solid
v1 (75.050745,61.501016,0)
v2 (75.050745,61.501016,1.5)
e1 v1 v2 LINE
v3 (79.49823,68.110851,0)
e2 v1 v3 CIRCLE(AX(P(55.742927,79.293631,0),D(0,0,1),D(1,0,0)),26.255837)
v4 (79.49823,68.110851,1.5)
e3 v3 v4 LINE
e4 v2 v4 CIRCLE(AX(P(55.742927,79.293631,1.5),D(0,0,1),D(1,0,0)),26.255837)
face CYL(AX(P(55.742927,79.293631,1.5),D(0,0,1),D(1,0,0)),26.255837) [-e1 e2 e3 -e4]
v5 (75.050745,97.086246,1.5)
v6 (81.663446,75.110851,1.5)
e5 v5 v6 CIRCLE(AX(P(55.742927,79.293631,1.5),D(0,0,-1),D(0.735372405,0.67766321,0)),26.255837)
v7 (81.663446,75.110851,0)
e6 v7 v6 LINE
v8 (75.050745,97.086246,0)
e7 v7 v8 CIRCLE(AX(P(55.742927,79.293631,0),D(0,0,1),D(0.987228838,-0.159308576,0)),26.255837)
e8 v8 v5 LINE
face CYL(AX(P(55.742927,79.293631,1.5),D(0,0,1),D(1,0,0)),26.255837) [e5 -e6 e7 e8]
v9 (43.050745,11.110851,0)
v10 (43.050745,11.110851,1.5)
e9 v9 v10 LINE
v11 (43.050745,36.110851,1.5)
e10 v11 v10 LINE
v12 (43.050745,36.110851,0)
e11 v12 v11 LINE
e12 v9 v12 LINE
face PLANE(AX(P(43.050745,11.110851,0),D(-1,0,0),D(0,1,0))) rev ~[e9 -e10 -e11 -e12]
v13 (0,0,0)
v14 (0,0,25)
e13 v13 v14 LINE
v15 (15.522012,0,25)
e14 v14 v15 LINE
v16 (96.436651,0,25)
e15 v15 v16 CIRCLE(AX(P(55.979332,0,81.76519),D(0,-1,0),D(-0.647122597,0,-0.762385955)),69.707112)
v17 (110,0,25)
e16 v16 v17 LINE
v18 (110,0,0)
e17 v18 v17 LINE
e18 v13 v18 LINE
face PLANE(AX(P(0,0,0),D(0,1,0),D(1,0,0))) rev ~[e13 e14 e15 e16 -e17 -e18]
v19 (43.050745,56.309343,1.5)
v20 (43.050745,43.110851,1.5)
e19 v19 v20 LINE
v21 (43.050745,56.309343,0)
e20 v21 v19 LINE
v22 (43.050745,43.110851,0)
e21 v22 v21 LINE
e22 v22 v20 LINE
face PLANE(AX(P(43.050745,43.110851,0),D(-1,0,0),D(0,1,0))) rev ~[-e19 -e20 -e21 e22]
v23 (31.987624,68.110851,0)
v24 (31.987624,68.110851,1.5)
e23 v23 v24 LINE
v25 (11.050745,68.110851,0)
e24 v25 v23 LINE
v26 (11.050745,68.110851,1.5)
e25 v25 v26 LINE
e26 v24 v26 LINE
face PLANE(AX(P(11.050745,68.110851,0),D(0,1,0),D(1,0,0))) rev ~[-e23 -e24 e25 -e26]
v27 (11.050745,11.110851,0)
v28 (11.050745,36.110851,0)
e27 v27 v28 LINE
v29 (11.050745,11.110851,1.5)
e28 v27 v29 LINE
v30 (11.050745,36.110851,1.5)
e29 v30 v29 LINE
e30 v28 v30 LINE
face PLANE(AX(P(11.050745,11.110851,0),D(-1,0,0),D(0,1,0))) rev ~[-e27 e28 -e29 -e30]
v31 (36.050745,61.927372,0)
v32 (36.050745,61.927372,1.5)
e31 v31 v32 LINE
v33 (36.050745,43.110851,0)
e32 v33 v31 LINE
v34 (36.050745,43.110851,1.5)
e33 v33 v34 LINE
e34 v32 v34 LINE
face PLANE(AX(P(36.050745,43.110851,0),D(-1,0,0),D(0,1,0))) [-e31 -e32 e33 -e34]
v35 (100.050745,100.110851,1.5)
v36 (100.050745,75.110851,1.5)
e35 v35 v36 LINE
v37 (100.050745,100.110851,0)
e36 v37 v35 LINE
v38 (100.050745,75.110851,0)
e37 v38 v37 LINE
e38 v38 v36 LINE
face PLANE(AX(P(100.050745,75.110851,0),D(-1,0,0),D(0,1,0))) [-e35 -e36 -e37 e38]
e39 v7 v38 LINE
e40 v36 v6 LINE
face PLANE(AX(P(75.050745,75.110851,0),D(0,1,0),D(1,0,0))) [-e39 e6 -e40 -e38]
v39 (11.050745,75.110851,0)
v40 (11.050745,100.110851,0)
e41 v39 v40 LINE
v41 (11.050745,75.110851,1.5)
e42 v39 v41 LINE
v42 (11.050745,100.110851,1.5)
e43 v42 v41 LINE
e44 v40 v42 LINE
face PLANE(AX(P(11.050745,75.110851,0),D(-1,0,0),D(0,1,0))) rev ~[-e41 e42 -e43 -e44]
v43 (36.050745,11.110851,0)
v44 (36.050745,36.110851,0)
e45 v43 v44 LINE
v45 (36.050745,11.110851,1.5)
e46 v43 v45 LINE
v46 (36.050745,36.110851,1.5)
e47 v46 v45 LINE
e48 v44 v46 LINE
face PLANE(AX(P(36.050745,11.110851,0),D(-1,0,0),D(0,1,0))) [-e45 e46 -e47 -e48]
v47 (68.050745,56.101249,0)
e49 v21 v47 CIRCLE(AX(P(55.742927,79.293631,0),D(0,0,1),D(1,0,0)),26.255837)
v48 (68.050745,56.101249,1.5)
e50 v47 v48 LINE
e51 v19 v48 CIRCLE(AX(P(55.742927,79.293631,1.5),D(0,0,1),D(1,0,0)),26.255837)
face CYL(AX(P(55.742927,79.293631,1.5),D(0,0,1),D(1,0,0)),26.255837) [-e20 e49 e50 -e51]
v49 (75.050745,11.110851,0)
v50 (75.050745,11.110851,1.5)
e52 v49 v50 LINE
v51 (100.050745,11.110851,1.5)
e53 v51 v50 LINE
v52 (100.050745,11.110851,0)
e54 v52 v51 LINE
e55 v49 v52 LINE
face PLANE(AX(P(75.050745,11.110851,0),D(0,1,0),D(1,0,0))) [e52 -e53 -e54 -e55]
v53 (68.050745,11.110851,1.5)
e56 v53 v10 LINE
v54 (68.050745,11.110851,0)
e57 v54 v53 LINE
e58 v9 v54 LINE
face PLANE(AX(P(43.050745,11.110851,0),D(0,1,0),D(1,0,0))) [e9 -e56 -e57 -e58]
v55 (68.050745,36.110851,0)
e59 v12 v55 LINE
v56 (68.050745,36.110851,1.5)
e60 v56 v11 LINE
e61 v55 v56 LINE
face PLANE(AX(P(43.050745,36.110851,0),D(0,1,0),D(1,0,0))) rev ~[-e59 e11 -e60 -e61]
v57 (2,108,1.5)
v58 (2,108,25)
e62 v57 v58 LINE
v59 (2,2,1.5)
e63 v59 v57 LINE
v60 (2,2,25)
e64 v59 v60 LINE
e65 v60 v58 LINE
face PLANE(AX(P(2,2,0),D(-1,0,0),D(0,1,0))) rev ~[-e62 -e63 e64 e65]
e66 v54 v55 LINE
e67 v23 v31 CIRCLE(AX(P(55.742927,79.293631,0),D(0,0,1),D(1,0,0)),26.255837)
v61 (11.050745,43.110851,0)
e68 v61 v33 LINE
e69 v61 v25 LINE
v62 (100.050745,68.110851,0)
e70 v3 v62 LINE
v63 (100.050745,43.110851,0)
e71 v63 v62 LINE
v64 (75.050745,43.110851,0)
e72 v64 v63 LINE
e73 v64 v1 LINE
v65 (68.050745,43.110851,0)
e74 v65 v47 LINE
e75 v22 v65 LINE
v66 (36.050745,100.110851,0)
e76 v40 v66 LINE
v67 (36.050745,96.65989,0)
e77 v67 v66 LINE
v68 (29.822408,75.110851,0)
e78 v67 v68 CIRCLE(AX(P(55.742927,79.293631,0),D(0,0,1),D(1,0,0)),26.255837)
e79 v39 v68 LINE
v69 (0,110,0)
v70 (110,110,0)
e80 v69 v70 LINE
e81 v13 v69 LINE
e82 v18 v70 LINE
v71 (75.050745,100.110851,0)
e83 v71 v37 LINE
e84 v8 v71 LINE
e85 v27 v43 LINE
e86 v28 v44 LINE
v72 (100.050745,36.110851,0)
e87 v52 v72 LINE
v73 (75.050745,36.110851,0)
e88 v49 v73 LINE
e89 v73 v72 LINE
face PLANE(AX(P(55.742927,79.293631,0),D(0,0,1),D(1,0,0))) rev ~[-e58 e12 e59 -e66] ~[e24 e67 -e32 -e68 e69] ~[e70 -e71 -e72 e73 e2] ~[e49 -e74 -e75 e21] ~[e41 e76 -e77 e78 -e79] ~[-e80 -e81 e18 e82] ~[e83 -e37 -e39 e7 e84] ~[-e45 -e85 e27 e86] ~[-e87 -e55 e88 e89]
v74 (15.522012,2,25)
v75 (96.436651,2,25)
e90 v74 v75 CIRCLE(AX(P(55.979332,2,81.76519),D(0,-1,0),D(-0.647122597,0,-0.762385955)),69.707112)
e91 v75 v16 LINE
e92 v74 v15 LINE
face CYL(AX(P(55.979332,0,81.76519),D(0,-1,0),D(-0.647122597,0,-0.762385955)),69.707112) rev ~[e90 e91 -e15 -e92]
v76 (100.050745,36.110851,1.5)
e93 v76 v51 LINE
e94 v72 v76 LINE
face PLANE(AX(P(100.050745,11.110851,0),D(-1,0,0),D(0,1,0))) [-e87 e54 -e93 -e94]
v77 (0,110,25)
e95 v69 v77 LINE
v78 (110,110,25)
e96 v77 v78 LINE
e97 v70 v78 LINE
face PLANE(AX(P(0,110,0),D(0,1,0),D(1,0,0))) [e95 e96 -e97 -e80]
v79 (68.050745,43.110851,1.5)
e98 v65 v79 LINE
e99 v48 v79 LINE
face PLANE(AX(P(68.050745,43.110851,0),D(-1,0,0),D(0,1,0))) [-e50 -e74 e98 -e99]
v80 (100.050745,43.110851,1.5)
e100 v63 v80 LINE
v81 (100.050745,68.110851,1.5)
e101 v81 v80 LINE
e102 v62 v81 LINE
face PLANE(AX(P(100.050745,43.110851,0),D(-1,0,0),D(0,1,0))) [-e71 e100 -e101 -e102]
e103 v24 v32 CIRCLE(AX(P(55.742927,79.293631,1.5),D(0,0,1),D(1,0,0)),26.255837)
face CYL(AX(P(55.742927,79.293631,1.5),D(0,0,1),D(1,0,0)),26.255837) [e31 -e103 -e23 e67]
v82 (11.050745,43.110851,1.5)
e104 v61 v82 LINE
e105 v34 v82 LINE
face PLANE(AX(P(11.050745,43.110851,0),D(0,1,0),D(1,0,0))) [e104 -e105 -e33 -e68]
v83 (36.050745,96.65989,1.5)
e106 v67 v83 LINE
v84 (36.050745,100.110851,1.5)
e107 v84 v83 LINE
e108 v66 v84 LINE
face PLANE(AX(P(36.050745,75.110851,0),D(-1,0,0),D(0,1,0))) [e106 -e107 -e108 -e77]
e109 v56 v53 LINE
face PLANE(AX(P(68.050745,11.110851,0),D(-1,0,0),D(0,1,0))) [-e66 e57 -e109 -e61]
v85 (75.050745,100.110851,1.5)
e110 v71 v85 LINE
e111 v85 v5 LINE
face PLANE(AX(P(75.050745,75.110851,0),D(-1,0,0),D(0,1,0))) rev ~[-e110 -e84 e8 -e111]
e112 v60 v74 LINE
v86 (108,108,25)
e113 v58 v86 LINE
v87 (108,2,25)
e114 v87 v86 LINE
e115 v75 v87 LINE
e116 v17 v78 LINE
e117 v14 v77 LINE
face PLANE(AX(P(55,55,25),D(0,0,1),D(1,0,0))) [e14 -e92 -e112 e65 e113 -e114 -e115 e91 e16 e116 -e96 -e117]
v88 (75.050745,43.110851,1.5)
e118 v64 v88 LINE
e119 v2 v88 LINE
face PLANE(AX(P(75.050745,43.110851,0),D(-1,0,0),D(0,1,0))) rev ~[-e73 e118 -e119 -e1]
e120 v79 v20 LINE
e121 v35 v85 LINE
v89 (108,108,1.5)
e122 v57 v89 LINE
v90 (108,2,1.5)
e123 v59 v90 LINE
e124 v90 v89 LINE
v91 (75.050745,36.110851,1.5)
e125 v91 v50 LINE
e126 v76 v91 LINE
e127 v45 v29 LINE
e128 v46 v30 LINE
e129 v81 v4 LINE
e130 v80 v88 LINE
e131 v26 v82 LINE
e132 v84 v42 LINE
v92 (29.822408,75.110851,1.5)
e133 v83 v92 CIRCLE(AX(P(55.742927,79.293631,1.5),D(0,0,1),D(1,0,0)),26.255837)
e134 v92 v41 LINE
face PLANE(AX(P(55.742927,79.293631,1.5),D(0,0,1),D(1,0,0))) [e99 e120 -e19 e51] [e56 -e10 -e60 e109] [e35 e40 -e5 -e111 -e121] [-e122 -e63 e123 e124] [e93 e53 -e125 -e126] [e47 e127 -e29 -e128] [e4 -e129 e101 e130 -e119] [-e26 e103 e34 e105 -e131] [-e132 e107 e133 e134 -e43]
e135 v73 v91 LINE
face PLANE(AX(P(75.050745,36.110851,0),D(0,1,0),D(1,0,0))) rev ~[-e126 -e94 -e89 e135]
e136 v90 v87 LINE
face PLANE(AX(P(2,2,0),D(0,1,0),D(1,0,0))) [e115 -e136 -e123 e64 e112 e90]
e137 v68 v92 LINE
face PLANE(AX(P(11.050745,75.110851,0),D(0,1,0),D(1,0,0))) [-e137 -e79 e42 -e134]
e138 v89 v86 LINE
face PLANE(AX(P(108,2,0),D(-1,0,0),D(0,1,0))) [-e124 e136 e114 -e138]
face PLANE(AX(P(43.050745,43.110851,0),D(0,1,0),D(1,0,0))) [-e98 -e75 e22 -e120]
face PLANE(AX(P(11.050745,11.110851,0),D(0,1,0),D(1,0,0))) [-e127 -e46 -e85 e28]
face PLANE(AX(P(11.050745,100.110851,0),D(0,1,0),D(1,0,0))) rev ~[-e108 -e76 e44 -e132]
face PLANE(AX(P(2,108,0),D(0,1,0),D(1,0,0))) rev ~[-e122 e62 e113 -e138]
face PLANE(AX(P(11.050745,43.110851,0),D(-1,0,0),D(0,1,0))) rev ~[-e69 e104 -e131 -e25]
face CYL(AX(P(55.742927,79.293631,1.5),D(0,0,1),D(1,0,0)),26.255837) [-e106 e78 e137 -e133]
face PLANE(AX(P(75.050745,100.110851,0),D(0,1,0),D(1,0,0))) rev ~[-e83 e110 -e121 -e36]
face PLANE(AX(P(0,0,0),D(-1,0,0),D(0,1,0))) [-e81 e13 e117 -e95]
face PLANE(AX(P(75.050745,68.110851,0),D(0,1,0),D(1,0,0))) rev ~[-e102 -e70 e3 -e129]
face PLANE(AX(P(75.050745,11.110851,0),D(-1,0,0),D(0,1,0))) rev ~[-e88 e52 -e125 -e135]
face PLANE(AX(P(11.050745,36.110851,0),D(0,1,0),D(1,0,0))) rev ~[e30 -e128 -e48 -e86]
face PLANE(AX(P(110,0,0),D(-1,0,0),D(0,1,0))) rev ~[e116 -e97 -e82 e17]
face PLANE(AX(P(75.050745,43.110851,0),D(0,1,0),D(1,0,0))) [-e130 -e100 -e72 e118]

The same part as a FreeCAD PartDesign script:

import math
import FreeCAD as App
import Part
import Sketcher
Q = App.Units.Quantity


def add_polygon(sketch, points):
    """Adds a closed chain of lines whose ends are joined by coincident constraints."""
    first, n = sketch.GeometryCount, len(points)
    for a, b in zip(points, points[1:] + points[:1]):
        sketch.addGeometry(Part.LineSegment(App.Vector(*a, 0), App.Vector(*b, 0)), False)
    for i in range(n):
        sketch.addConstraint(Sketcher.Constraint("Coincident", first + i, 2, first + (i + 1) % n, 1))

doc = App.newDocument("Part")
body = doc.addObject("PartDesign::Body", "Body")

# Sketch on XY plane
sketch1 = doc.addObject("Sketcher::SketchObject", "Sketch")
body.addObject(sketch1)
sketch1.AttachmentSupport = (doc.XY_Plane, [""])
sketch1.MapMode = "FlatFace"
add_polygon(sketch1, [(0, 110), (0, 0), (110, 0), (110, 110)])  # lines 0-3
add_polygon(sketch1, [(108, 2), (2, 2), (2, 108), (108, 108)])  # lines 4-7
sketch1.addConstraint(Sketcher.Constraint("Vertical", 0))
sketch1.addConstraint(Sketcher.Constraint("Horizontal", 1))
sketch1.addConstraint(Sketcher.Constraint("Vertical", 2))
sketch1.addConstraint(Sketcher.Constraint("Horizontal", 3))
sketch1.addConstraint(Sketcher.Constraint("Horizontal", 4))
sketch1.addConstraint(Sketcher.Constraint("Vertical", 5))
sketch1.addConstraint(Sketcher.Constraint("Horizontal", 6))
sketch1.addConstraint(Sketcher.Constraint("Vertical", 7))
sketch1.addConstraint(Sketcher.Constraint("Coincident", 0, 2, -1, 1))
sketch1.addConstraint(Sketcher.Constraint("Equal", 3, 0))
sketch1.addConstraint(Sketcher.Constraint("Equal", 6, 5))
sketch1.addConstraint(Sketcher.Constraint("DistanceX", 1, 1, 1, 2, Q("110 mm")))
sketch1.addConstraint(Sketcher.Constraint("DistanceX", 4, 2, 4, 1, Q("106 mm")))
sketch1.addConstraint(Sketcher.Constraint("DistanceX", -1, 1, 4, 2, Q("2 mm")))
sketch1.addConstraint(Sketcher.Constraint("DistanceY", -1, 1, 4, 2, Q("2 mm")))
pad1 = doc.addObject("PartDesign::Pad", "Pad")
body.addObject(pad1)
pad1.Profile = sketch1
pad1.Length = 25

# Sketch on XY plane
sketch2 = doc.addObject("Sketcher::SketchObject", "Sketch001")
body.addObject(sketch2)
sketch2.AttachmentSupport = (doc.XY_Plane, [""])
sketch2.MapMode = "FlatFace"
add_polygon(sketch2, [(2, 108), (2, 2), (108, 2), (108, 108)])  # lines 0-3
sketch2.addConstraint(Sketcher.Constraint("Vertical", 0))
sketch2.addConstraint(Sketcher.Constraint("Horizontal", 1))
sketch2.addConstraint(Sketcher.Constraint("Vertical", 2))
sketch2.addConstraint(Sketcher.Constraint("Horizontal", 3))
sketch2.addConstraint(Sketcher.Constraint("Equal", 3, 0))
sketch2.addConstraint(Sketcher.Constraint("DistanceX", 1, 1, 1, 2, Q("106 mm")))
sketch2.addConstraint(Sketcher.Constraint("DistanceX", -1, 1, 0, 2, Q("2 mm")))
sketch2.addConstraint(Sketcher.Constraint("DistanceY", -1, 1, 0, 2, Q("2 mm")))
pad2 = doc.addObject("PartDesign::Pad", "Pad001")
body.addObject(pad2)
pad2.Profile = sketch2
pad2.Length = 1.5

# Sketch on XY plane
sketch3 = doc.addObject("Sketcher::SketchObject", "Sketch002")
body.addObject(sketch3)
sketch3.AttachmentSupport = (doc.XY_Plane, [""])
sketch3.MapMode = "FlatFace"
add_polygon(sketch3, [(11.050745, 100.110851), (11.050745, 75.110851), (36.050745, 75.110851), (36.050745, 100.110851)])  # lines 0-3
add_polygon(sketch3, [(11.050745, 68.110851), (11.050745, 43.110851), (36.050745, 43.110851), (36.050745, 68.110851)])  # lines 4-7
add_polygon(sketch3, [(11.050745, 36.110851), (11.050745, 11.110851), (36.050745, 11.110851), (36.050745, 36.110851)])  # lines 8-11
add_polygon(sketch3, [(43.050745, 100.110851), (43.050745, 75.110851), (68.050745, 75.110851), (68.050745, 100.110851)])  # lines 12-15
add_polygon(sketch3, [(43.050745, 68.110851), (43.050745, 43.110851), (68.050745, 43.110851), (68.050745, 68.110851)])  # lines 16-19
add_polygon(sketch3, [(43.050745, 36.110851), (43.050745, 11.110851), (68.050745, 11.110851), (68.050745, 36.110851)])  # lines 20-23
add_polygon(sketch3, [(75.050745, 100.110851), (75.050745, 75.110851), (100.050745, 75.110851), (100.050745, 100.110851)])  # lines 24-27
add_polygon(sketch3, [(75.050745, 68.110851), (75.050745, 43.110851), (100.050745, 43.110851), (100.050745, 68.110851)])  # lines 28-31
add_polygon(sketch3, [(75.050745, 36.110851), (75.050745, 11.110851), (100.050745, 11.110851), (100.050745, 36.110851)])  # lines 32-35
sketch3.addConstraint(Sketcher.Constraint("Vertical", 0))
sketch3.addConstraint(Sketcher.Constraint("Horizontal", 1))
sketch3.addConstraint(Sketcher.Constraint("Vertical", 2))
sketch3.addConstraint(Sketcher.Constraint("Horizontal", 3))
sketch3.addConstraint(Sketcher.Constraint("Vertical", 4))
sketch3.addConstraint(Sketcher.Constraint("Horizontal", 5))
sketch3.addConstraint(Sketcher.Constraint("Vertical", 6))
sketch3.addConstraint(Sketcher.Constraint("Horizontal", 7))
sketch3.addConstraint(Sketcher.Constraint("Vertical", 8))
sketch3.addConstraint(Sketcher.Constraint("Horizontal", 9))
sketch3.addConstraint(Sketcher.Constraint("Vertical", 10))
sketch3.addConstraint(Sketcher.Constraint("Horizontal", 11))
sketch3.addConstraint(Sketcher.Constraint("Vertical", 12))
sketch3.addConstraint(Sketcher.Constraint("Horizontal", 13))
sketch3.addConstraint(Sketcher.Constraint("Vertical", 14))
sketch3.addConstraint(Sketcher.Constraint("Horizontal", 15))
sketch3.addConstraint(Sketcher.Constraint("Vertical", 16))
sketch3.addConstraint(Sketcher.Constraint("Horizontal", 17))
sketch3.addConstraint(Sketcher.Constraint("Vertical", 18))
sketch3.addConstraint(Sketcher.Constraint("Horizontal", 19))
sketch3.addConstraint(Sketcher.Constraint("Vertical", 20))
sketch3.addConstraint(Sketcher.Constraint("Horizontal", 21))
sketch3.addConstraint(Sketcher.Constraint("Vertical", 22))
sketch3.addConstraint(Sketcher.Constraint("Horizontal", 23))
sketch3.addConstraint(Sketcher.Constraint("Vertical", 24))
sketch3.addConstraint(Sketcher.Constraint("Horizontal", 25))
sketch3.addConstraint(Sketcher.Constraint("Vertical", 26))
sketch3.addConstraint(Sketcher.Constraint("Horizontal", 27))
sketch3.addConstraint(Sketcher.Constraint("Vertical", 28))
sketch3.addConstraint(Sketcher.Constraint("Horizontal", 29))
sketch3.addConstraint(Sketcher.Constraint("Vertical", 30))
sketch3.addConstraint(Sketcher.Constraint("Horizontal", 31))
sketch3.addConstraint(Sketcher.Constraint("Vertical", 32))
sketch3.addConstraint(Sketcher.Constraint("Horizontal", 33))
sketch3.addConstraint(Sketcher.Constraint("Vertical", 34))
sketch3.addConstraint(Sketcher.Constraint("Horizontal", 35))
sketch3.addConstraint(Sketcher.Constraint("Horizontal", 1, 2, 12, 2))
sketch3.addConstraint(Sketcher.Constraint("Horizontal", 3, 2, 14, 2))
sketch3.addConstraint(Sketcher.Constraint("Horizontal", 5, 2, 16, 2))
sketch3.addConstraint(Sketcher.Constraint("Horizontal", 7, 2, 18, 2))
sketch3.addConstraint(Sketcher.Constraint("Horizontal", 9, 2, 20, 2))
sketch3.addConstraint(Sketcher.Constraint("Horizontal", 11, 2, 22, 2))
sketch3.addConstraint(Sketcher.Constraint("Horizontal", 13, 2, 24, 2))
sketch3.addConstraint(Sketcher.Constraint("Horizontal", 15, 2, 26, 2))
sketch3.addConstraint(Sketcher.Constraint("Horizontal", 17, 2, 28, 2))
sketch3.addConstraint(Sketcher.Constraint("Horizontal", 19, 2, 30, 2))
sketch3.addConstraint(Sketcher.Constraint("Horizontal", 21, 2, 32, 2))
sketch3.addConstraint(Sketcher.Constraint("Horizontal", 23, 2, 34, 2))
sketch3.addConstraint(Sketcher.Constraint("Vertical", 3, 2, 4, 2))
sketch3.addConstraint(Sketcher.Constraint("Vertical", 2, 2, 5, 2))
sketch3.addConstraint(Sketcher.Constraint("Vertical", 7, 2, 8, 2))
sketch3.addConstraint(Sketcher.Constraint("Vertical", 6, 2, 9, 2))
sketch3.addConstraint(Sketcher.Constraint("Vertical", 15, 2, 16, 2))
sketch3.addConstraint(Sketcher.Constraint("Vertical", 14, 2, 17, 2))
sketch3.addConstraint(Sketcher.Constraint("Vertical", 19, 2, 20, 2))
sketch3.addConstraint(Sketcher.Constraint("Vertical", 18, 2, 21, 2))
sketch3.addConstraint(Sketcher.Constraint("Vertical", 27, 2, 28, 2))
sketch3.addConstraint(Sketcher.Constraint("Vertical", 26, 2, 29, 2))
sketch3.addConstraint(Sketcher.Constraint("Vertical", 31, 2, 32, 2))
sketch3.addConstraint(Sketcher.Constraint("Vertical", 30, 2, 33, 2))
sketch3.addConstraint(Sketcher.Constraint("Equal", 11, 13))
sketch3.addConstraint(Sketcher.Constraint("Equal", 23, 25))
sketch3.addConstraint(Sketcher.Constraint("Equal", 35, 0))
sketch3.addConstraint(Sketcher.Constraint("Equal", 2, 4))
sketch3.addConstraint(Sketcher.Constraint("Equal", 6, 8))
sketch3.addConstraint(Sketcher.Constraint("DistanceX", 1, 1, 1, 2, Q("25 mm")))
sketch3.addConstraint(Sketcher.Constraint("DistanceY", 4, 2, 0, 2, Q("32 mm")))
sketch3.addConstraint(Sketcher.Constraint("DistanceY", 8, 2, 4, 2, Q("32 mm")))
sketch3.addConstraint(Sketcher.Constraint("DistanceX", 1, 2, 12, 2, Q("7 mm")))
sketch3.addConstraint(Sketcher.Constraint("DistanceX", 13, 2, 24, 2, Q("7 mm")))
sketch3.addConstraint(Sketcher.Constraint("DistanceY", -1, 1, 0, 2, Q("75.110851 mm")))
sketch3.addConstraint(Sketcher.Constraint("DistanceX", -1, 1, 0, 2, Q("11.050745 mm")))
pocket1 = doc.addObject("PartDesign::Pocket", "Pocket")
body.addObject(pocket1)
pocket1.Profile = sketch3
pocket1.Length = 25
pocket1.Reversed = True

# Sketch on XY plane
sketch4 = doc.addObject("Sketcher::SketchObject", "Sketch003")
body.addObject(sketch4)
sketch4.AttachmentSupport = (doc.XY_Plane, [""])
sketch4.MapMode = "FlatFace"
sketch4.AttachmentOffset = App.Placement(App.Vector(0, 0, 1.5), App.Rotation())
sketch4.addGeometry(Part.Circle(App.Vector(55.742927, 79.293631, 0), App.Vector(0, 0, 1), 26.255837), False)
sketch4.addConstraint(Sketcher.Constraint("Diameter", 0, Q("52.511674 mm")))
sketch4.addConstraint(Sketcher.Constraint("DistanceY", -1, 1, 0, 3, Q("79.293631 mm")))
sketch4.addConstraint(Sketcher.Constraint("DistanceX", -1, 1, 0, 3, Q("55.742927 mm")))
pad3 = doc.addObject("PartDesign::Pad", "Pad002")
body.addObject(pad3)
pad3.Profile = sketch4
pad3.Length = 1.5
pad3.Reversed = True

# Sketch on XZ plane
sketch5 = doc.addObject("Sketcher::SketchObject", "Sketch004")
body.addObject(sketch5)
sketch5.AttachmentSupport = (doc.XZ_Plane, [""])
sketch5.MapMode = "FlatFace"
sketch5.addGeometry(Part.LineSegment(App.Vector(100.912742, 28.472882, 0), App.Vector(10.870284, 28.621467, 0)), False)
sketch5.addGeometry(Part.ArcOfCircle(Part.Circle(App.Vector(55.979332, 81.76519, 0), App.Vector(0, 0, 1), 69.707112), math.radians(-130.325008), math.radians(-49.864087)), False)
sketch5.addConstraint(Sketcher.Constraint("Coincident", 0, 1, 1, 2))
sketch5.addConstraint(Sketcher.Constraint("Coincident", 1, 1, 0, 2))
sketch5.addConstraint(Sketcher.Constraint("Radius", 1, Q("69.707112 mm")))
sketch5.addConstraint(Sketcher.Constraint("Distance", 0, Q("90.042581 mm")))
sketch5.addConstraint(Sketcher.Constraint("DistanceX", -1, 1, 1, 3, Q("55.979332 mm")))
sketch5.addConstraint(Sketcher.Constraint("DistanceY", -1, 1, 1, 3, Q("81.76519 mm")))
sketch5.addConstraint(Sketcher.Constraint("DistanceX", -1, 1, 0, 1, Q("100.912742 mm")))
pocket2 = doc.addObject("PartDesign::Pocket", "Pocket001")
body.addObject(pocket2)
pocket2.Profile = sketch5
pocket2.Length = 25

doc.recompute()
